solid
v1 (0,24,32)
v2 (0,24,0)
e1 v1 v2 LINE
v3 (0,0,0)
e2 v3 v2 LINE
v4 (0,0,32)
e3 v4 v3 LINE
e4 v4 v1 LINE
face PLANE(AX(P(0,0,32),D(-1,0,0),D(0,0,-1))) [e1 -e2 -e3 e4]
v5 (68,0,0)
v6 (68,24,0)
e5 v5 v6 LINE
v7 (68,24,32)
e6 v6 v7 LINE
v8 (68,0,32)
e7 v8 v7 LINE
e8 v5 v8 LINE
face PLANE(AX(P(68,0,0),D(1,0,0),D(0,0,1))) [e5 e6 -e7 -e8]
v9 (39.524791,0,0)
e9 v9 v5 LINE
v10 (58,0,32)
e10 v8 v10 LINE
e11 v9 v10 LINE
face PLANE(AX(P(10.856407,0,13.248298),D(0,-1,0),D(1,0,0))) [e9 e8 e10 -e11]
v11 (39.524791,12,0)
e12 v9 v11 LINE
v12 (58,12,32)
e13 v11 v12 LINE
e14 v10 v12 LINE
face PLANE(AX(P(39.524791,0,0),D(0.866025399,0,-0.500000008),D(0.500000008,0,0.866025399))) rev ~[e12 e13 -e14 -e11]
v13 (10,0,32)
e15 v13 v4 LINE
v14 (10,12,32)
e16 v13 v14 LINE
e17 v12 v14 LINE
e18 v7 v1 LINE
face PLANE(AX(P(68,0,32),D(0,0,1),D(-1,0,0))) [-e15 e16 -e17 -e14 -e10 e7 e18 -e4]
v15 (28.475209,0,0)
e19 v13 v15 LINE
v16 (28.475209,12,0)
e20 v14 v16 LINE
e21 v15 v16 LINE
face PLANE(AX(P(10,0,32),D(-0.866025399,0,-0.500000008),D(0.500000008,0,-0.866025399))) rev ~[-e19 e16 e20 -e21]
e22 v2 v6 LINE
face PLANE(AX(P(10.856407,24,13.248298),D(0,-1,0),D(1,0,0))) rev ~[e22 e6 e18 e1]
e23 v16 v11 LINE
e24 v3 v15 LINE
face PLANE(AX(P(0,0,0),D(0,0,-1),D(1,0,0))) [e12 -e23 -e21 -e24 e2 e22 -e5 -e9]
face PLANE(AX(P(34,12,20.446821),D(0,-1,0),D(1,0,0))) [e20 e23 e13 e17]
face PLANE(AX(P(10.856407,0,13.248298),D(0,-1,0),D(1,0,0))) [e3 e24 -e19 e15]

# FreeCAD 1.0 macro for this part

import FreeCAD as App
import Part
import Sketcher
Q = App.Units.Quantity


def add_polygon(sketch, points):
    """Adds a closed chain of lines whose ends are joined by coincident constraints."""
    first, n = sketch.GeometryCount, len(points)
    for a, b in zip(points, points[1:] + points[:1]):
        sketch.addGeometry(Part.LineSegment(App.Vector(*a, 0), App.Vector(*b, 0)), False)
    for i in range(n):
        sketch.addConstraint(Sketcher.Constraint("Coincident", first + i, 2, first + (i + 1) % n, 1))

doc = App.newDocument("Part")
body = doc.addObject("PartDesign::Body", "Body")

sketch1 = body.newObject("Sketcher::SketchObject", "Sketch")
sketch1.AttachmentSupport = (doc.getObject("XZ_Plane"), [""])
sketch1.MapMode = "FlatFace"
add_polygon(sketch1, [(0, 32), (0, 0), (68, 0), (68, 32)])
sketch1.addConstraint([
    Sketcher.Constraint("Vertical", 0),
    Sketcher.Constraint("Horizontal", 1),
    Sketcher.Constraint("Vertical", 2),
    Sketcher.Constraint("Horizontal", 3),
    Sketcher.Constraint("Coincident", 0, 2, -1, 1),
    Sketcher.Constraint("DistanceX", 1, 1, 1, 2, 68.0),
    Sketcher.Constraint("DistanceY", 0, 2, 0, 1, 32.0),
])
pad1 = body.newObject("PartDesign::Pad", "Pad")
pad1.Profile = sketch1
pad1.Length = 24
pad1.Reversed = True

sketch2 = body.newObject("Sketcher::SketchObject", "Sketch001")
sketch2.AttachmentSupport = (doc.getObject("XZ_Plane"), [""])
sketch2.MapMode = "FlatFace"
add_polygon(sketch2, [(10, 32), (28, 0), (40, 0), (58, 32)])
sketch2.addConstraint([
    Sketcher.Constraint("Horizontal", 1),
    Sketcher.Constraint("Horizontal", 3),
    Sketcher.Constraint("PointOnObject", 0, 2, -1),
    Sketcher.Constraint("Equal", 0, 2),
    Sketcher.Constraint("DistanceX", 3, 2, 3, 1, 48.0),
    Sketcher.Constraint("Angle", 0, Q("-59.999999 deg")),
    Sketcher.Constraint("DistanceX", -1, 1, 2, 2, 58.0),
    Sketcher.Constraint("DistanceY", -1, 1, 2, 2, 32.0),
])
pocket1 = body.newObject("PartDesign::Pocket", "Pocket")
pocket1.Profile = sketch2
pocket1.Length = 12

doc.recompute()
